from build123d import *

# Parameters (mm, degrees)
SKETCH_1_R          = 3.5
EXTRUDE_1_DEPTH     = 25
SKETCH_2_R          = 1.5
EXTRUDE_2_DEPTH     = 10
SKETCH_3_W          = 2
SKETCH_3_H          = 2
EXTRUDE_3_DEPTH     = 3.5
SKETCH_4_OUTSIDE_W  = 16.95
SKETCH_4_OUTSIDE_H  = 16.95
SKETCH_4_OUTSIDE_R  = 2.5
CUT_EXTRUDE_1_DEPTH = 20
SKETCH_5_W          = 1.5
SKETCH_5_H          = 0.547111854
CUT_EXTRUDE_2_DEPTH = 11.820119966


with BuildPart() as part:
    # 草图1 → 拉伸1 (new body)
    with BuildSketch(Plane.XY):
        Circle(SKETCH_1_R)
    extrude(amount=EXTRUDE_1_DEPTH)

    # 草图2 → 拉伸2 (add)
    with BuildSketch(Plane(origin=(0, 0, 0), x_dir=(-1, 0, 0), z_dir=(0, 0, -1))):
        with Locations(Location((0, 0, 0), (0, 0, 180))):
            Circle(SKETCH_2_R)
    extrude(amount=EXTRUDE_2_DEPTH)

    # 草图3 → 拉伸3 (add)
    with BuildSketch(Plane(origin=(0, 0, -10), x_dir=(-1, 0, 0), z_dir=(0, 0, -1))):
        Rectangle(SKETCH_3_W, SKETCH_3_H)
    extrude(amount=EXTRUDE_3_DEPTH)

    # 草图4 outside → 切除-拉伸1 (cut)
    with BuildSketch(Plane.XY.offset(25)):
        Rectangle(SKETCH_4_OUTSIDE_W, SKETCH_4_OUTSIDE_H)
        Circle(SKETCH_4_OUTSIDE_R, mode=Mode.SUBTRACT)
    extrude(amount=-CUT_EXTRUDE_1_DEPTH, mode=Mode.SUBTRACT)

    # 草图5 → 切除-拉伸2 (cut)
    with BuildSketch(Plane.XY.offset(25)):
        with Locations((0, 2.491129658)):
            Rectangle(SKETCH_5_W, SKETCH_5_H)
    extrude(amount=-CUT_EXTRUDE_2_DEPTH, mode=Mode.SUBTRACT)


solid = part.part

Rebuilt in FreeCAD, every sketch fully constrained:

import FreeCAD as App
import Part
import Sketcher

V = App.Vector
Q = App.Units.Quantity

doc = App.newDocument("Part")
params = doc.addObject("Spreadsheet::Sheet", "Params")
for row, (alias, value) in enumerate([
    ("sketch1_diameter", "7 mm"),
    ("pad1_length", "25 mm"),
    ("sketch2_diameter", "3 mm"),
    ("pad2_length", "10 mm"),
    ("sketch3_width", "2 mm"),
    ("pad3_length", "3.5 mm"),
    ("sketch4_diameter", "5 mm"),
    ("sketch4_width", "16.95 mm"),
    ("pocket1_length", "20 mm"),
    ("sketch5_width", "1.5 mm"),
    ("pocket2_length", "11.82012 mm"),
], start=1):
    params.set(f"A{row}", alias)
    params.set(f"B{row}", "=" + value)
    params.setAlias(f"B{row}", alias)

body = doc.addObject("PartDesign::Body", "Body")

# Sketch on XY plane
sketch1 = body.newObject("Sketcher::SketchObject", "Sketch")
sketch1.AttachmentSupport = (doc.getObject("XY_Plane"), [""])
sketch1.MapMode = "FlatFace"
sketch1.addGeometry(Part.Circle(V(0, 0, 0), V(0, 0, 1), 3.5), False)
sketch1.addConstraint([
    Sketcher.Constraint("Coincident", 0, 3, -1, 1),
    Sketcher.Constraint("Diameter", 0, Q("7 mm")),
])
sketch1.setExpression("Constraints[1]", "Params.sketch1_diameter")
pad1 = body.newObject("PartDesign::Pad", "Pad")
pad1.Profile = sketch1
pad1.setExpression("Length", "Params.pad1_length")

# Sketch on XY plane
sketch2 = body.newObject("Sketcher::SketchObject", "Sketch001")
sketch2.AttachmentSupport = (doc.getObject("XY_Plane"), [""])
sketch2.MapMode = "FlatFace"
sketch2.addGeometry(Part.Circle(V(0, 0, 0), V(0, 0, 1), 1.5), False)
sketch2.addConstraint([
    Sketcher.Constraint("Coincident", 0, 3, -1, 1),
    Sketcher.Constraint("Diameter", 0, Q("3 mm")),
])
sketch2.setExpression("Constraints[1]", "Params.sketch2_diameter")
pad2 = body.newObject("PartDesign::Pad", "Pad001")
pad2.Profile = sketch2
pad2.setExpression("Length", "Params.pad2_length")
pad2.Reversed = True

# Sketch on XY plane
sketch3 = body.newObject("Sketcher::SketchObject", "Sketch002")
sketch3.AttachmentSupport = (doc.getObject("XY_Plane"), [""])
sketch3.MapMode = "FlatFace"
sketch3.AttachmentOffset = App.Placement(V(0, 0, -10), App.Rotation())
sketch3.addGeometry([
    Part.LineSegment(V(1, 1, 0), V(1, -1, 0)),
    Part.LineSegment(V(1, -1, 0), V(-1, -1, 0)),
    Part.LineSegment(V(-1, -1, 0), V(-1, 1, 0)),
    Part.LineSegment(V(-1, 1, 0), V(1, 1, 0)),
], False)
sketch3.addConstraint([
    Sketcher.Constraint("Coincident", 0, 2, 1, 1),
    Sketcher.Constraint("Coincident", 1, 2, 2, 1),
    Sketcher.Constraint("Coincident", 2, 2, 3, 1),
    Sketcher.Constraint("Coincident", 3, 2, 0, 1),
    Sketcher.Constraint("Vertical", 0),
    Sketcher.Constraint("Horizontal", 1),
    Sketcher.Constraint("Vertical", 2),
    Sketcher.Constraint("Horizontal", 3),
    Sketcher.Constraint("Symmetric", 0, 2, 2, 2, -1, 1),
    Sketcher.Constraint("Equal", 3, 0),
    Sketcher.Constraint("DistanceX", 1, 2, 1, 1, Q("2 mm")),
])
sketch3.setExpression("Constraints[10]", "Params.sketch3_width")
pad3 = body.newObject("PartDesign::Pad", "Pad002")
pad3.Profile = sketch3
pad3.setExpression("Length", "Params.pad3_length")
pad3.Reversed = True

# Sketch on XY plane
sketch4 = body.newObject("Sketcher::SketchObject", "Sketch003")
sketch4.AttachmentSupport = (doc.getObject("XY_Plane"), [""])
sketch4.MapMode = "FlatFace"
sketch4.AttachmentOffset = App.Placement(V(0, 0, 25), App.Rotation())
sketch4.addGeometry([
    Part.LineSegment(V(-8.5, 8.5, 0), V(-8.5, -8.5, 0)),  # 0
    Part.LineSegment(V(-8.5, -8.5, 0), V(8.5, -8.5, 0)),  # 1
    Part.LineSegment(V(8.5, -8.5, 0), V(8.5, 8.5, 0)),  # 2
    Part.LineSegment(V(8.5, 8.5, 0), V(-8.5, 8.5, 0)),  # 3
    Part.Circle(V(0, 0, 0), V(0, 0, 1), 2.5),  # 4
], False)
sketch4.addConstraint([
    Sketcher.Constraint("Coincident", 0, 2, 1, 1),
    Sketcher.Constraint("Coincident", 1, 2, 2, 1),
    Sketcher.Constraint("Coincident", 2, 2, 3, 1),
    Sketcher.Constraint("Coincident", 3, 2, 0, 1),
    Sketcher.Constraint("Vertical", 0),
    Sketcher.Constraint("Horizontal", 1),
    Sketcher.Constraint("Vertical", 2),
    Sketcher.Constraint("Horizontal", 3),
    Sketcher.Constraint("Coincident", 4, 3, -1, 1),
    Sketcher.Constraint("Symmetric", 0, 2, 2, 2, -1, 1),
    Sketcher.Constraint("Equal", 3, 0),
    Sketcher.Constraint("Diameter", 4, Q("5 mm")),
    Sketcher.Constraint("DistanceX", 1, 1, 1, 2, Q("16.95 mm")),
])
sketch4.setExpression("Constraints[11]", "Params.sketch4_diameter")
sketch4.setExpression("Constraints[12]", "Params.sketch4_width")
pocket1 = body.newObject("PartDesign::Pocket", "Pocket")
pocket1.Profile = sketch4
pocket1.setExpression("Length", "Params.pocket1_length")

# Sketch on XY plane
sketch5 = body.newObject("Sketcher::SketchObject", "Sketch004")
sketch5.AttachmentSupport = (doc.getObject("XY_Plane"), [""])
sketch5.MapMode = "FlatFace"
sketch5.AttachmentOffset = App.Placement(V(0, 0, 25), App.Rotation())
sketch5.addGeometry([
    Part.LineSegment(V(-0.8, 2.8, 0), V(-0.8, 2.2, 0)),
    Part.LineSegment(V(-0.8, 2.2, 0), V(0.8, 2.2, 0)),
    Part.LineSegment(V(0.8, 2.2, 0), V(0.8, 2.8, 0)),
    Part.LineSegment(V(0.8, 2.8, 0), V(-0.8, 2.8, 0)),
], False)
sketch5.addConstraint([
    Sketcher.Constraint("Coincident", 0, 2, 1, 1),
    Sketcher.Constraint("Coincident", 1, 2, 2, 1),
    Sketcher.Constraint("Coincident", 2, 2, 3, 1),
    Sketcher.Constraint("Coincident", 3, 2, 0, 1),
    Sketcher.Constraint("Vertical", 0),
    Sketcher.Constraint("Horizontal", 1),
    Sketcher.Constraint("Vertical", 2),
    Sketcher.Constraint("Horizontal", 3),
    Sketcher.Constraint("DistanceX", 1, 1, 1, 2, Q("1.5 mm")),
    Sketcher.Constraint("DistanceX", 0, 2, -1, 1, Q("0.75 mm")),
    Sketcher.Constraint("DistanceY", 0, 2, 0, 1, Q("0.547112 mm")),
    Sketcher.Constraint("DistanceY", -1, 1, 0, 2, Q("2.217574 mm")),
])
sketch5.setExpression("Constraints[8]", "Params.sketch5_width")
pocket2 = body.newObject("PartDesign::Pocket", "Pocket001")
pocket2.Profile = sketch5
pocket2.setExpression("Length", "Params.pocket2_length")

doc.recompute()
